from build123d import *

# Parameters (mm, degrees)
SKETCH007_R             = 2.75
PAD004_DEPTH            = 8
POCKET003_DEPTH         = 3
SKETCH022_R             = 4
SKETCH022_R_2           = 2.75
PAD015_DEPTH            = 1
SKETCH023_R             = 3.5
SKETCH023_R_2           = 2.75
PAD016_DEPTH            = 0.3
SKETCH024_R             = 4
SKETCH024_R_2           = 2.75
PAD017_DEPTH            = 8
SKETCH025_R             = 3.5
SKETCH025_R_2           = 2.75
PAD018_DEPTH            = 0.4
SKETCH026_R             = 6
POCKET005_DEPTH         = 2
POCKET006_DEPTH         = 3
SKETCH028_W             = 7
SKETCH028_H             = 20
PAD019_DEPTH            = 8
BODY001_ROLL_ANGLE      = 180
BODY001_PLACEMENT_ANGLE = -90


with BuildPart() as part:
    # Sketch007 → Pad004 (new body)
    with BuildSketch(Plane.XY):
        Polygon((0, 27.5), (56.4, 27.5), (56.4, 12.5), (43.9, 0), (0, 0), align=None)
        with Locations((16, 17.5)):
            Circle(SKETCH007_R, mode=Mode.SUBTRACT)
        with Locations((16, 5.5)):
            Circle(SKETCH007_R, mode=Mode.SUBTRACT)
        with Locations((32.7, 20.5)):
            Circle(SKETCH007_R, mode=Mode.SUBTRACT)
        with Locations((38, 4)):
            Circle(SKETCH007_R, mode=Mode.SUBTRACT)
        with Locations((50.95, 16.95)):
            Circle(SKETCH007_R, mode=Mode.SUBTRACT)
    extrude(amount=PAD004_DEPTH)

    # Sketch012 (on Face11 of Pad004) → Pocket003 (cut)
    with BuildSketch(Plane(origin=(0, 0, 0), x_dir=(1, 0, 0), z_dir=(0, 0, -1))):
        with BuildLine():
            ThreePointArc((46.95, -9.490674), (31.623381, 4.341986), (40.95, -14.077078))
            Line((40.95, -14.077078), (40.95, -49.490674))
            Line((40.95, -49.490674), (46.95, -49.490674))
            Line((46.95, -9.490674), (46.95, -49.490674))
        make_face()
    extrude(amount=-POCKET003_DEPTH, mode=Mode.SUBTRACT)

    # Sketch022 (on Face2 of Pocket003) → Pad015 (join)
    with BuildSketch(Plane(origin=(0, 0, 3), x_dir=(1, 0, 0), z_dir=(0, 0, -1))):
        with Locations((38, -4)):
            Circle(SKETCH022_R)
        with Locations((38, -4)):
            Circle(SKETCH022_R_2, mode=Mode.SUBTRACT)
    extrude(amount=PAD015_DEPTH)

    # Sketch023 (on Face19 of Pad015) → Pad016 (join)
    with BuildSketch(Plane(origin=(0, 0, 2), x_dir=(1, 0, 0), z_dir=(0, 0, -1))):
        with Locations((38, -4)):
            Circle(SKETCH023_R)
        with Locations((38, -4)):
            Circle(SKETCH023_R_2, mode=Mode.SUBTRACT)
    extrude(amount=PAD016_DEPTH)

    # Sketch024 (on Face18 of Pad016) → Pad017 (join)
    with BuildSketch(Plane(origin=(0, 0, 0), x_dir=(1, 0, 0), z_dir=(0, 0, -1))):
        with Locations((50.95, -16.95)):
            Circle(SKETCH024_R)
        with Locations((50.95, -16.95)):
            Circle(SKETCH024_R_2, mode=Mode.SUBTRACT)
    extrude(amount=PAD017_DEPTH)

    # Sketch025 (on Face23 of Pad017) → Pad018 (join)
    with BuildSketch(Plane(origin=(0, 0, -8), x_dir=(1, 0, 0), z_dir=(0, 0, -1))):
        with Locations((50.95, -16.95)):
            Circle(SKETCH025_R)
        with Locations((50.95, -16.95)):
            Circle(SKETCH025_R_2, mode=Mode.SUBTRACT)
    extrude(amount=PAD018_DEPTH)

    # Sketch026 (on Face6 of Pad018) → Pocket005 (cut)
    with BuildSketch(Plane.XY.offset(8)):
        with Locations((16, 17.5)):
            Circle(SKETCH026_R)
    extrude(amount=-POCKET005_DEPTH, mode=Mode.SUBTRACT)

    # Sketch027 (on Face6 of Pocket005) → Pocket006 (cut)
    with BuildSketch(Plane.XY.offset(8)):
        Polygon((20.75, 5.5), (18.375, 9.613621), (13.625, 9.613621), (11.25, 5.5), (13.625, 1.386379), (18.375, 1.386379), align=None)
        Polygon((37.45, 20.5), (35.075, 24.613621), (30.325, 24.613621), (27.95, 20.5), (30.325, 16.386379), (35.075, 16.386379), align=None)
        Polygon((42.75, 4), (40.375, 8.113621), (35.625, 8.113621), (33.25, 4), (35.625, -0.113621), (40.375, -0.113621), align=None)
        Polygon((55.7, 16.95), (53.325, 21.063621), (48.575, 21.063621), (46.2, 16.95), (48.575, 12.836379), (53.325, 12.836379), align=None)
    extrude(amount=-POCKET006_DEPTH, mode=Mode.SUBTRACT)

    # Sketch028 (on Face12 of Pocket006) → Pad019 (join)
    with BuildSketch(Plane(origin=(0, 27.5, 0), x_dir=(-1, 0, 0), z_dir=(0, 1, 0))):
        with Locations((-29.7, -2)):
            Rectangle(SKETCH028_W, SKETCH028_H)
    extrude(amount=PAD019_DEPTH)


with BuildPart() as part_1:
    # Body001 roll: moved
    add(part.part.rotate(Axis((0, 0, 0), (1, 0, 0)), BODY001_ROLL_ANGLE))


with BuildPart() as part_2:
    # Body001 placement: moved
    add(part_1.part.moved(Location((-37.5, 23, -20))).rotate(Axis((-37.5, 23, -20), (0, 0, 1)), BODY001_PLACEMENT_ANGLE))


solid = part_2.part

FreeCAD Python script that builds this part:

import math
import FreeCAD as App
import Part
import Sketcher

V = App.Vector
Q = App.Units.Quantity

doc = App.newDocument("Part")
body = doc.addObject("PartDesign::Body", "Body")

# Sketch on XY plane
sketch1 = doc.addObject("Sketcher::SketchObject", "Sketch")
body.addObject(sketch1)
sketch1.AttachmentSupport = (doc.XY_Plane, [""])
sketch1.MapMode = "FlatFace"
sketch1.addGeometry([
    Part.LineSegment(V(56.4, 27.5, 0), V(0, 27.5, 0)),  # 0
    Part.LineSegment(V(0, 27.5, 0), V(0, 0, 0)),  # 1
    Part.LineSegment(V(0, 0, 0), V(43.9, 0, 0)),  # 2
    Part.LineSegment(V(43.9, 0, 0), V(56.4, 12.5, 0)),  # 3
    Part.LineSegment(V(56.4, 12.5, 0), V(56.4, 27.5, 0)),  # 4
    Part.Circle(V(38, 4, 0), V(0, 0, 1), 2.8),  # 5
    Part.Circle(V(16, 5.5, 0), V(0, 0, 1), 2.8),  # 6
    Part.Circle(V(51, 16.9, 0), V(0, 0, 1), 2.8),  # 7
    Part.Circle(V(16, 17.5, 0), V(0, 0, 1), 2.8),  # 8
    Part.Circle(V(32.7, 20.5, 0), V(0, 0, 1), 2.8),  # 9
], False)
sketch1.addConstraint([
    Sketcher.Constraint("Coincident", 0, 2, 1, 1),
    Sketcher.Constraint("Coincident", 1, 2, 2, 1),
    Sketcher.Constraint("Coincident", 2, 2, 3, 1),
    Sketcher.Constraint("Coincident", 3, 2, 4, 1),
    Sketcher.Constraint("Coincident", 4, 2, 0, 1),
    Sketcher.Constraint("Horizontal", 0),
    Sketcher.Constraint("Vertical", 1),
    Sketcher.Constraint("Horizontal", 2),
    Sketcher.Constraint("Vertical", 4),
    Sketcher.Constraint("Coincident", 1, 2, -1, 1),
    Sketcher.Constraint("Equal", 5, 6),
    Sketcher.Constraint("Equal", 6, 7),
    Sketcher.Constraint("Equal", 7, 8),
    Sketcher.Constraint("Equal", 8, 9),
    Sketcher.Constraint("Vertical", 6, 3, 8, 3),
    Sketcher.Constraint("Diameter", 5, Q("5.5 mm")),
    Sketcher.Constraint("DistanceY", 4, 1, 4, 2, Q("15 mm")),
    Sketcher.Constraint("Angle", 3, Q("45 deg")),
    Sketcher.Constraint("DistanceX", 0, 2, 0, 1, Q("56.4 mm")),
    Sketcher.Constraint("DistanceX", 2, 1, 2, 2, Q("43.9 mm")),
    Sketcher.Constraint("DistanceX", -1, 1, 5, 3, Q("38 mm")),
    Sketcher.Constraint("DistanceY", -1, 1, 5, 3, Q("4 mm")),
    Sketcher.Constraint("DistanceX", -1, 1, 6, 3, Q("16 mm")),
    Sketcher.Constraint("DistanceY", 6, 3, 8, 3, Q("12 mm")),
    Sketcher.Constraint("DistanceY", 8, 3, 9, 3, Q("3 mm")),
    Sketcher.Constraint("DistanceY", 8, 3, 0, 2, Q("10 mm")),
    Sketcher.Constraint("DistanceX", -1, 1, 9, 3, Q("32.7 mm")),
    Sketcher.Constraint("DistanceX", -1, 1, 7, 3, Q("50.95 mm")),
    Sketcher.Constraint("DistanceY", -1, 1, 7, 3, Q("16.95 mm")),
])
pad1 = doc.addObject("PartDesign::Pad", "Pad")
body.addObject(pad1)
pad1.Profile = sketch1
pad1.Length = 8

# Sketch on XY plane
sketch2 = doc.addObject("Sketcher::SketchObject", "Sketch001")
body.addObject(sketch2)
sketch2.AttachmentSupport = (doc.XY_Plane, [""])
sketch2.MapMode = "FlatFace"
sketch2.addGeometry([
    Part.ArcOfCircle(Part.Circle(V(38, 4, 0), V(0, 0, 1), 11), math.radians(74), math.radians(392)),
    Part.LineSegment(V(41, 14, 0), V(41, 49, 0)),
    Part.LineSegment(V(41, 49, 0), V(47, 49, 0)),
    Part.LineSegment(V(47, 49, 0), V(47, 9, 0)),
], False)
sketch2.addConstraint([
    Sketcher.Constraint("Coincident", 0, 1, 1, 1),
    Sketcher.Constraint("Coincident", 1, 2, 2, 1),
    Sketcher.Constraint("Coincident", 2, 2, 3, 1),
    Sketcher.Constraint("Coincident", 3, 2, 0, 2),
    Sketcher.Constraint("Vertical", 1),
    Sketcher.Constraint("Horizontal", 2),
    Sketcher.Constraint("Vertical", 3),
    Sketcher.Constraint("Radius", 0, Q("10.5 mm")),
    Sketcher.Constraint("DistanceX", 2, 1, 2, 2, Q("6 mm")),
    Sketcher.Constraint("DistanceY", 3, 2, 3, 1, Q("40 mm")),
    Sketcher.Constraint("DistanceX", -1, 1, 0, 3, Q("38 mm")),
    Sketcher.Constraint("DistanceY", -1, 1, 0, 3, Q("4 mm")),
    Sketcher.Constraint("DistanceX", -1, 1, 0, 1, Q("40.95 mm")),
])
pocket1 = doc.addObject("PartDesign::Pocket", "Pocket")
body.addObject(pocket1)
pocket1.Profile = sketch2
pocket1.Length = 3
pocket1.Reversed = True

# Sketch on XY plane
sketch3 = doc.addObject("Sketcher::SketchObject", "Sketch002")
body.addObject(sketch3)
sketch3.AttachmentSupport = (doc.XY_Plane, [""])
sketch3.MapMode = "FlatFace"
sketch3.AttachmentOffset = App.Placement(V(0, 0, 3), App.Rotation())
sketch3.addGeometry([
    Part.Circle(V(38, 4, 0), V(0, 0, 1), 4),
    Part.Circle(V(38, 4, 0), V(0, 0, 1), 2.8),
], False)
sketch3.addConstraint([
    Sketcher.Constraint("Coincident", 1, 3, 0, 3),
    Sketcher.Constraint("Diameter", 0, Q("8 mm")),
    Sketcher.Constraint("Diameter", 1, Q("5.5 mm")),
    Sketcher.Constraint("DistanceX", -1, 1, 0, 3, Q("38 mm")),
    Sketcher.Constraint("DistanceY", -1, 1, 0, 3, Q("4 mm")),
])
pad2 = doc.addObject("PartDesign::Pad", "Pad001")
body.addObject(pad2)
pad2.Profile = sketch3
pad2.Length = 1
pad2.Reversed = True

# Sketch on XY plane
sketch4 = doc.addObject("Sketcher::SketchObject", "Sketch003")
body.addObject(sketch4)
sketch4.AttachmentSupport = (doc.XY_Plane, [""])
sketch4.MapMode = "FlatFace"
sketch4.AttachmentOffset = App.Placement(V(0, 0, 2), App.Rotation())
sketch4.addGeometry([
    Part.Circle(V(38, 4, 0), V(0, 0, 1), 3.5),
    Part.Circle(V(38, 4, 0), V(0, 0, 1), 2.8),
], False)
sketch4.addConstraint([
    Sketcher.Constraint("Coincident", 1, 3, 0, 3),
    Sketcher.Constraint("Diameter", 0, Q("7 mm")),
    Sketcher.Constraint("Diameter", 1, Q("5.5 mm")),
    Sketcher.Constraint("DistanceX", -1, 1, 0, 3, Q("38 mm")),
    Sketcher.Constraint("DistanceY", -1, 1, 0, 3, Q("4 mm")),
])
pad3 = doc.addObject("PartDesign::Pad", "Pad002")
body.addObject(pad3)
pad3.Profile = sketch4
pad3.Length = 0.3
pad3.Reversed = True

# Sketch on XY plane
sketch5 = doc.addObject("Sketcher::SketchObject", "Sketch004")
body.addObject(sketch5)
sketch5.AttachmentSupport = (doc.XY_Plane, [""])
sketch5.MapMode = "FlatFace"
sketch5.addGeometry([
    Part.Circle(V(51, 16.9, 0), V(0, 0, 1), 4),
    Part.Circle(V(51, 16.9, 0), V(0, 0, 1), 2.8),
], False)
sketch5.addConstraint([
    Sketcher.Constraint("Coincident", 1, 3, 0, 3),
    Sketcher.Constraint("Diameter", 0, Q("8 mm")),
    Sketcher.Constraint("Diameter", 1, Q("5.5 mm")),
    Sketcher.Constraint("DistanceX", -1, 1, 0, 3, Q("50.95 mm")),
    Sketcher.Constraint("DistanceY", -1, 1, 0, 3, Q("16.95 mm")),
])
pad4 = doc.addObject("PartDesign::Pad", "Pad003")
body.addObject(pad4)
pad4.Profile = sketch5
pad4.Length = 8
pad4.Reversed = True

# Sketch on XY plane
sketch6 = doc.addObject("Sketcher::SketchObject", "Sketch005")
body.addObject(sketch6)
sketch6.AttachmentSupport = (doc.XY_Plane, [""])
sketch6.MapMode = "FlatFace"
sketch6.AttachmentOffset = App.Placement(V(0, 0, -8), App.Rotation())
sketch6.addGeometry([
    Part.Circle(V(51, 16.9, 0), V(0, 0, 1), 3.5),
    Part.Circle(V(51, 16.9, 0), V(0, 0, 1), 2.8),
], False)
sketch6.addConstraint([
    Sketcher.Constraint("Coincident", 1, 3, 0, 3),
    Sketcher.Constraint("Diameter", 0, Q("7 mm")),
    Sketcher.Constraint("Diameter", 1, Q("5.5 mm")),
    Sketcher.Constraint("DistanceX", -1, 1, 0, 3, Q("50.95 mm")),
    Sketcher.Constraint("DistanceY", -1, 1, 0, 3, Q("16.95 mm")),
])
pad5 = doc.addObject("PartDesign::Pad", "Pad004")
body.addObject(pad5)
pad5.Profile = sketch6
pad5.Length = 0.4
pad5.Reversed = True

# Sketch on XY plane
sketch7 = doc.addObject("Sketcher::SketchObject", "Sketch006")
body.addObject(sketch7)
sketch7.AttachmentSupport = (doc.XY_Plane, [""])
sketch7.MapMode = "FlatFace"
sketch7.AttachmentOffset = App.Placement(V(0, 0, 8), App.Rotation())
sketch7.addGeometry(Part.Circle(V(16, 18, 0), V(0, 0, 1), 6), False)
sketch7.addConstraint([
    Sketcher.Constraint("Diameter", 0, Q("12 mm")),
    Sketcher.Constraint("DistanceX", -1, 1, 0, 3, Q("16 mm")),
    Sketcher.Constraint("DistanceY", -1, 1, 0, 3, Q("17.5 mm")),
])
pocket2 = doc.addObject("PartDesign::Pocket", "Pocket001")
body.addObject(pocket2)
pocket2.Profile = sketch7
pocket2.Length = 2

# Sketch on XY plane
sketch8 = doc.addObject("Sketcher::SketchObject", "Sketch007")
body.addObject(sketch8)
sketch8.AttachmentSupport = (doc.XY_Plane, [""])
sketch8.MapMode = "FlatFace"
sketch8.AttachmentOffset = App.Placement(V(0, 0, 8), App.Rotation())
sketch8.addGeometry([
    Part.LineSegment(V(20.8, 5.5, 0), V(18.4, 9.6, 0)),  # 0
    Part.LineSegment(V(18.4, 9.6, 0), V(13.6, 9.6, 0)),  # 1
    Part.LineSegment(V(13.6, 9.6, 0), V(11.2, 5.5, 0)),  # 2
    Part.LineSegment(V(11.2, 5.5, 0), V(13.6, 1.4, 0)),  # 3
    Part.LineSegment(V(13.6, 1.4, 0), V(18.4, 1.4, 0)),  # 4
    Part.LineSegment(V(18.4, 1.4, 0), V(20.8, 5.5, 0)),  # 5
    Part.LineSegment(V(37.5, 20.5, 0), V(35.1, 24.6, 0)),  # 6
    Part.LineSegment(V(35.1, 24.6, 0), V(30.3, 24.6, 0)),  # 7
    Part.LineSegment(V(30.3, 24.6, 0), V(27.9, 20.5, 0)),  # 8
    Part.LineSegment(V(27.9, 20.5, 0), V(30.3, 16.4, 0)),  # 9
    Part.LineSegment(V(30.3, 16.4, 0), V(35.1, 16.4, 0)),  # 10
    Part.LineSegment(V(35.1, 16.4, 0), V(37.5, 20.5, 0)),  # 11
    Part.LineSegment(V(42.8, 4, 0), V(40.4, 8.1, 0)),  # 12
    Part.LineSegment(V(40.4, 8.1, 0), V(35.6, 8.1, 0)),  # 13
    Part.LineSegment(V(35.6, 8.1, 0), V(33.2, 4, 0)),  # 14
    Part.LineSegment(V(33.2, 4, 0), V(35.6, -0.1, 0)),  # 15
    Part.LineSegment(V(35.6, -0.1, 0), V(40.4, -0.1, 0)),  # 16
    Part.LineSegment(V(40.4, -0.1, 0), V(42.8, 4, 0)),  # 17
    Part.LineSegment(V(55.7, 16.9, 0), V(53.3, 21.1, 0)),  # 18
    Part.LineSegment(V(53.3, 21.1, 0), V(48.6, 21.1, 0)),  # 19
    Part.LineSegment(V(48.6, 21.1, 0), V(46.2, 16.9, 0)),  # 20
    Part.LineSegment(V(46.2, 16.9, 0), V(48.6, 12.8, 0)),  # 21
    Part.LineSegment(V(48.6, 12.8, 0), V(53.3, 12.8, 0)),  # 22
    Part.LineSegment(V(53.3, 12.8, 0), V(55.7, 16.9, 0)),  # 23
], False)
sketch8.addConstraint([
    Sketcher.Constraint("Coincident", 0, 2, 1, 1),
    Sketcher.Constraint("Coincident", 1, 2, 2, 1),
    Sketcher.Constraint("Coincident", 2, 2, 3, 1),
    Sketcher.Constraint("Coincident", 3, 2, 4, 1),
    Sketcher.Constraint("Coincident", 4, 2, 5, 1),
    Sketcher.Constraint("Coincident", 5, 2, 0, 1),
    Sketcher.Constraint("Coincident", 6, 2, 7, 1),
    Sketcher.Constraint("Coincident", 7, 2, 8, 1),
    Sketcher.Constraint("Coincident", 8, 2, 9, 1),
    Sketcher.Constraint("Coincident", 9, 2, 10, 1),
    Sketcher.Constraint("Coincident", 10, 2, 11, 1),
    Sketcher.Constraint("Coincident", 11, 2, 6, 1),
    Sketcher.Constraint("Coincident", 12, 2, 13, 1),
    Sketcher.Constraint("Coincident", 13, 2, 14, 1),
    Sketcher.Constraint("Coincident", 14, 2, 15, 1),
    Sketcher.Constraint("Coincident", 15, 2, 16, 1),
    Sketcher.Constraint("Coincident", 16, 2, 17, 1),
    Sketcher.Constraint("Coincident", 17, 2, 12, 1),
    Sketcher.Constraint("Coincident", 18, 2, 19, 1),
    Sketcher.Constraint("Coincident", 19, 2, 20, 1),
    Sketcher.Constraint("Coincident", 20, 2, 21, 1),
    Sketcher.Constraint("Coincident", 21, 2, 22, 1),
    Sketcher.Constraint("Coincident", 22, 2, 23, 1),
    Sketcher.Constraint("Coincident", 23, 2, 18, 1),
    Sketcher.Constraint("Horizontal", 1),
    Sketcher.Constraint("Horizontal", 4),
    Sketcher.Constraint("Horizontal", 7),
    Sketcher.Constraint("Horizontal", 10),
    Sketcher.Constraint("Horizontal", 13),
    Sketcher.Constraint("Horizontal", 16),
    Sketcher.Constraint("Horizontal", 19),
    Sketcher.Constraint("Horizontal", 22),
    Sketcher.Constraint("Parallel", 0, 3),
    Sketcher.Constraint("Parallel", 2, 5),
    Sketcher.Constraint("Parallel", 3, 6),
    Sketcher.Constraint("Parallel", 5, 8),
    Sketcher.Constraint("Parallel", 6, 9),
    Sketcher.Constraint("Parallel", 8, 11),
    Sketcher.Constraint("Parallel", 9, 12),
    Sketcher.Constraint("Parallel", 11, 14),
    Sketcher.Constraint("Parallel", 12, 15),
    Sketcher.Constraint("Parallel", 14, 17),
    Sketcher.Constraint("Parallel", 15, 18),
    Sketcher.Constraint("Parallel", 17, 20),
    Sketcher.Constraint("Parallel", 18, 21),
    Sketcher.Constraint("Parallel", 20, 23),
    Sketcher.Constraint("Horizontal", 2, 2, 5, 2),
    Sketcher.Constraint("Horizontal", 8, 2, 11, 2),
    Sketcher.Constraint("Horizontal", 14, 2, 17, 2),
    Sketcher.Constraint("Horizontal", 20, 2, 23, 2),
    Sketcher.Constraint("Vertical", 1, 2, 3, 2),
    Sketcher.Constraint("Vertical", 0, 2, 4, 2),
    Sketcher.Constraint("Vertical", 7, 2, 9, 2),
    Sketcher.Constraint("Vertical", 13, 2, 15, 2),
    Sketcher.Constraint("Vertical", 19, 2, 21, 2),
    Sketcher.Constraint("Equal", 4, 7),
    Sketcher.Constraint("Equal", 10, 13),
    Sketcher.Constraint("Equal", 16, 19),
    Sketcher.Constraint("Equal", 5, 6),
    Sketcher.Constraint("Equal", 11, 12),
    Sketcher.Constraint("Equal", 17, 18),
    Sketcher.Constraint("Angle", 0, Q("119.999998 deg")),
    Sketcher.Constraint("DistanceY", -1, 1, 14, 2, Q("4 mm")),
    Sketcher.Constraint("DistanceY", 0, 2, 6, 2, Q("15 mm")),
    Sketcher.Constraint("DistanceX", 1, 2, 1, 1, Q("4.75 mm")),
    Sketcher.Constraint("DistanceY", -1, 1, 2, 2, Q("5.5 mm")),
    Sketcher.Constraint("DistanceX", -1, 1, 20, 2, Q("46.2 mm")),
    Sketcher.Constraint("DistanceX", -1, 1, 23, 2, Q("55.7 mm")),
    Sketcher.Constraint("DistanceX", 0, 2, 6, 2, Q("16.7 mm")),
    Sketcher.Constraint("DistanceX", 10, 2, 12, 2, Q("5.3 mm")),
    Sketcher.Constraint("DistanceX", 6, 2, 19, 2, Q("13.5 mm")),
    Sketcher.Constraint("DistanceY", -1, 1, 20, 2, Q("16.95 mm")),
])
pocket3 = doc.addObject("PartDesign::Pocket", "Pocket002")
body.addObject(pocket3)
pocket3.Profile = sketch8
pocket3.Length = 3

# Sketch on XZ plane
sketch9 = doc.addObject("Sketcher::SketchObject", "Sketch008")
body.addObject(sketch9)
sketch9.AttachmentSupport = (doc.XZ_Plane, [""])
sketch9.MapMode = "FlatFace"
sketch9.AttachmentOffset = App.Placement(V(0, 0, -27.5), App.Rotation())
sketch9.addGeometry([
    Part.LineSegment(V(33, 8, 0), V(33, -12, 0)),
    Part.LineSegment(V(33, -12, 0), V(26, -12, 0)),
    Part.LineSegment(V(26, -12, 0), V(26, 8, 0)),
    Part.LineSegment(V(26, 8, 0), V(33, 8, 0)),
], False)
sketch9.addConstraint([
    Sketcher.Constraint("Coincident", 0, 2, 1, 1),
    Sketcher.Constraint("Coincident", 1, 2, 2, 1),
    Sketcher.Constraint("Coincident", 2, 2, 3, 1),
    Sketcher.Constraint("Coincident", 3, 2, 0, 1),
    Sketcher.Constraint("Vertical", 0),
    Sketcher.Constraint("Horizontal", 1),
    Sketcher.Constraint("Vertical", 2),
    Sketcher.Constraint("Horizontal", 3),
    Sketcher.Constraint("DistanceX", 1, 2, 1, 1, Q("7 mm")),
    Sketcher.Constraint("DistanceY", 0, 2, 0, 1, Q("20 mm")),
    Sketcher.Constraint("DistanceY", 0, 2, -1, 1, Q("12 mm")),
    Sketcher.Constraint("DistanceX", -1, 1, 0, 2, Q("33.2 mm")),
])
pad6 = doc.addObject("PartDesign::Pad", "Pad005")
body.addObject(pad6)
pad6.Profile = sketch9
pad6.Length = 8
pad6.Reversed = True
body2 = doc.addObject("PartDesign::Body", "Body001")
doc.recompute()

body.Placement = App.Placement(V(0, 0, 0), App.Rotation(V(1, 0, 0), 180))
boolean = doc.addObject("PartDesign::Boolean", "Boolean")
body2.addObject(boolean)
boolean.Type = "Fuse"
boolean.addObjects([body])
body3 = doc.addObject("PartDesign::Body", "Body002")
doc.recompute()

body2.Placement = App.Placement(V(-37.5, 23, -20), App.Rotation(V(0, 0, 1), 270))
boolean2 = doc.addObject("PartDesign::Boolean", "Boolean001")
body3.addObject(boolean2)
boolean2.Type = "Fuse"
boolean2.addObjects([body2])

doc.recompute()
